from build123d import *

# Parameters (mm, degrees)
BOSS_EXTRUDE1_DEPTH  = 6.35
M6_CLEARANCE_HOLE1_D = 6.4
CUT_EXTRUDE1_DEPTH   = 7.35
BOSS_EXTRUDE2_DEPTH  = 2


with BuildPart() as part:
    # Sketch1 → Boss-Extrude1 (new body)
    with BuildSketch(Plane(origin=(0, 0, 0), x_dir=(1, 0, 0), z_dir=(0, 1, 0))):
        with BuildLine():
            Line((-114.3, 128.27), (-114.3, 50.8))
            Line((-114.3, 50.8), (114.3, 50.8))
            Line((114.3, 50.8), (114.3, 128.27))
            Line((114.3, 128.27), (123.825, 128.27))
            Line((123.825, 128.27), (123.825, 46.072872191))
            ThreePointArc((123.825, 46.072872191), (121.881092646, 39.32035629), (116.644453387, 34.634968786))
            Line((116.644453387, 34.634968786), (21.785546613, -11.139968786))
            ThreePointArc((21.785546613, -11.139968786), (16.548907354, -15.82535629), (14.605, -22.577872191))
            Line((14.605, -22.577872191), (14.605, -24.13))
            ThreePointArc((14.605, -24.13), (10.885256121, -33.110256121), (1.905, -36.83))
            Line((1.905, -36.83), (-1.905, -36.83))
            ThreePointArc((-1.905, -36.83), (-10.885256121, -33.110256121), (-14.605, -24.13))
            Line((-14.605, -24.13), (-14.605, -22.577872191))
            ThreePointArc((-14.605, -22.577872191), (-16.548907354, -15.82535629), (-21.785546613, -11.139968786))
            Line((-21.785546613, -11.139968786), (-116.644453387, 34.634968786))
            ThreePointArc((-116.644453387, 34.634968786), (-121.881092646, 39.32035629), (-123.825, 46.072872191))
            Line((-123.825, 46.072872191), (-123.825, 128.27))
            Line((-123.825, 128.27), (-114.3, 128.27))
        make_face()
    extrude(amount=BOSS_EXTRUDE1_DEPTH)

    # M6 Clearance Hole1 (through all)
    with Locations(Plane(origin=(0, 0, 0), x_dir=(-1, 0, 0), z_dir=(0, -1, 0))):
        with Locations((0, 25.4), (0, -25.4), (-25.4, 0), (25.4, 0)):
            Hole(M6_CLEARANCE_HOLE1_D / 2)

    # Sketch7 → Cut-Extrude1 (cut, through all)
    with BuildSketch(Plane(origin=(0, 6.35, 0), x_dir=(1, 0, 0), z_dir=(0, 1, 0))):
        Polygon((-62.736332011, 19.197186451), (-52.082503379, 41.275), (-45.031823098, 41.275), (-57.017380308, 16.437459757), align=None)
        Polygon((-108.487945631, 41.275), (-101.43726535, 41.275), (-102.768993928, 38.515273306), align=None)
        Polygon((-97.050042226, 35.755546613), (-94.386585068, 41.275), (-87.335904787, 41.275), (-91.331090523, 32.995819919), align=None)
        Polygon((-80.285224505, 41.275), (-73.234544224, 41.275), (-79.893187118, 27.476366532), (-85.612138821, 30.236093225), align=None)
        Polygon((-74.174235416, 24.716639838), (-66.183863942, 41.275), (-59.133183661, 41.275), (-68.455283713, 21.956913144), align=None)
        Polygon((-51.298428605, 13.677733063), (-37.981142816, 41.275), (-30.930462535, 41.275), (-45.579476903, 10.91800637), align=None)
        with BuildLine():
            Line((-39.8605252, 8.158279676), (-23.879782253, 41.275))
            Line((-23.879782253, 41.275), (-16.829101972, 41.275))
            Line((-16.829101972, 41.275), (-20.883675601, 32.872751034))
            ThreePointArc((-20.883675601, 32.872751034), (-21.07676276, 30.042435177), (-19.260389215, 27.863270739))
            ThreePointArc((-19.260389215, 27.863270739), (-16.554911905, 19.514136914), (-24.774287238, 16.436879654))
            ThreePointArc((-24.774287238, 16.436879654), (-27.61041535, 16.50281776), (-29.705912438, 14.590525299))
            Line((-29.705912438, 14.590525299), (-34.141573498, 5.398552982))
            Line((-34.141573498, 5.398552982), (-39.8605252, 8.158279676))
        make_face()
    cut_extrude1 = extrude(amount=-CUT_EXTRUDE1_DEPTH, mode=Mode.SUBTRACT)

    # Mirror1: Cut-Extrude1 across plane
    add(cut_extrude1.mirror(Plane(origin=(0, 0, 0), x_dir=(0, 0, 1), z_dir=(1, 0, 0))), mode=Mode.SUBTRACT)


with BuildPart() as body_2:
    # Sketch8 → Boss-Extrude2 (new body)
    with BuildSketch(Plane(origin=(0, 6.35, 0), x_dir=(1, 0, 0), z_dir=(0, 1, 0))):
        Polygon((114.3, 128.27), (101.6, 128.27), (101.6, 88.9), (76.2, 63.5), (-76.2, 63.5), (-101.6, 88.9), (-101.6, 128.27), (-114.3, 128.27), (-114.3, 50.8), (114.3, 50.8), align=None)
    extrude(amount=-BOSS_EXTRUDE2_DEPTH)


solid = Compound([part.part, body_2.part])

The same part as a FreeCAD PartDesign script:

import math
import FreeCAD as App
import Part
import Sketcher

V = App.Vector
Q = App.Units.Quantity


def add_polygon(sketch, points):
    """Adds a closed chain of lines whose ends are joined by coincident constraints."""
    first, n = sketch.GeometryCount, len(points)
    for a, b in zip(points, points[1:] + points[:1]):
        sketch.addGeometry(Part.LineSegment(App.Vector(*a, 0), App.Vector(*b, 0)), False)
    for i in range(n):
        sketch.addConstraint(Sketcher.Constraint("Coincident", first + i, 2, first + (i + 1) % n, 1))

doc = App.newDocument("Part")
body = doc.addObject("PartDesign::Body", "Body")

sketch1 = doc.addObject("Sketcher::SketchObject", "Sketch")
body.addObject(sketch1)
sketch1.AttachmentSupport = (doc.XZ_Plane, [""])
sketch1.MapMode = "FlatFace"
sketch1.addGeometry([
    Part.LineSegment(V(-114.3, -50.8, 0), V(-114.3, -128.27, 0)),
    Part.LineSegment(V(-114.3, -128.27, 0), V(-123.825, -128.27, 0)),
    Part.LineSegment(V(-123.825, -128.27, 0), V(-123.825, -46.072872, 0)),
    Part.ArcOfCircle(Part.Circle(V(-111.125, -46.072872, 0), V(0, 0, 1), 12.7), math.radians(115.760011), math.radians(180)),
    Part.LineSegment(V(-116.644453, -34.634969, 0), V(-21.785547, 11.139969, 0)),
    Part.ArcOfCircle(Part.Circle(V(-27.305, 22.577872, 0), V(0, 0, 1), 12.7), math.radians(-64.239989), math.radians(0)),
    Part.LineSegment(V(-14.605, 22.577872, 0), V(-14.605, 24.13, 0)),
    Part.ArcOfCircle(Part.Circle(V(-1.905, 24.13, 0), V(0, 0, 1), 12.7), math.radians(90), math.radians(180)),
    Part.LineSegment(V(-1.905, 36.83, 0), V(1.905, 36.83, 0)),
    Part.ArcOfCircle(Part.Circle(V(1.905, 24.13, 0), V(0, 0, 1), 12.7), math.radians(0), math.radians(90)),
    Part.LineSegment(V(14.605, 24.13, 0), V(14.605, 22.577872, 0)),
    Part.ArcOfCircle(Part.Circle(V(27.305, 22.577872, 0), V(0, 0, 1), 12.7), math.radians(180), math.radians(244.239989)),
    Part.LineSegment(V(21.785547, 11.139969, 0), V(116.644453, -34.634969, 0)),
    Part.ArcOfCircle(Part.Circle(V(111.125, -46.072872, 0), V(0, 0, 1), 12.7), math.radians(0), math.radians(64.239989)),
    Part.LineSegment(V(123.825, -46.072872, 0), V(123.825, -128.27, 0)),
    Part.LineSegment(V(123.825, -128.27, 0), V(114.3, -128.27, 0)),
    Part.LineSegment(V(114.3, -128.27, 0), V(114.3, -50.8, 0)),
    Part.LineSegment(V(114.3, -50.8, 0), V(-114.3, -50.8, 0)),
], False)
sketch1.addConstraint([
    Sketcher.Constraint("Coincident", 0, 2, 1, 1),
    Sketcher.Constraint("Coincident", 1, 2, 2, 1),
    Sketcher.Constraint("Tangent", 2, 2, 3, 2),
    Sketcher.Constraint("Tangent", 3, 1, 4, 1),
    Sketcher.Constraint("Tangent", 4, 2, 5, 1),
    Sketcher.Constraint("Tangent", 5, 2, 6, 1),
    Sketcher.Constraint("Tangent", 6, 2, 7, 2),
    Sketcher.Constraint("Tangent", 7, 1, 8, 1),
    Sketcher.Constraint("Tangent", 8, 2, 9, 2),
    Sketcher.Constraint("Tangent", 9, 1, 10, 1),
    Sketcher.Constraint("Tangent", 10, 2, 11, 1),
    Sketcher.Constraint("Tangent", 11, 2, 12, 1),
    Sketcher.Constraint("Tangent", 12, 2, 13, 2),
    Sketcher.Constraint("Tangent", 13, 1, 14, 1),
    Sketcher.Constraint("Coincident", 14, 2, 15, 1),
    Sketcher.Constraint("Coincident", 15, 2, 16, 1),
    Sketcher.Constraint("Coincident", 16, 2, 17, 1),
    Sketcher.Constraint("Coincident", 17, 2, 0, 1),
    Sketcher.Constraint("Vertical", 0),
    Sketcher.Constraint("Horizontal", 1),
    Sketcher.Constraint("Vertical", 2),
    Sketcher.Constraint("Vertical", 6),
    Sketcher.Constraint("Horizontal", 8),
    Sketcher.Constraint("Vertical", 10),
    Sketcher.Constraint("Vertical", 14),
    Sketcher.Constraint("Horizontal", 15),
    Sketcher.Constraint("Vertical", 16),
    Sketcher.Constraint("Horizontal", 17),
    Sketcher.Constraint("Equal", 3, 5),
    Sketcher.Constraint("Equal", 5, 7),
    Sketcher.Constraint("Equal", 7, 9),
    Sketcher.Constraint("Equal", 9, 11),
    Sketcher.Constraint("Equal", 11, 13),
    Sketcher.Constraint("Symmetric", 5, 3, 11, 3, -2),
    Sketcher.Constraint("Symmetric", 3, 3, 13, 3, -2),
    Sketcher.Constraint("Symmetric", 0, 2, 15, 2, -2),
    Sketcher.Constraint("Radius", 3, Q("0.5 in")),
    Sketcher.Constraint("DistanceX", 17, 2, 17, 1, Q("9 in")),
    Sketcher.Constraint("DistanceY", 16, 2, -1, 1, Q("2 in")),
    Sketcher.Constraint("DistanceY", 0, 2, 7, 3, Q("6 in")),
    Sketcher.Constraint("DistanceX", 8, 1, 8, 2, Q("0.15 in")),
    Sketcher.Constraint("DistanceY", 0, 2, 0, 1, Q("3.05 in")),
    Sketcher.Constraint("DistanceX", 3, 3, 5, 3, Q("3.3 in")),
    Sketcher.Constraint("Angle", 4, Q("25.760011 deg")),
    Sketcher.Constraint("DistanceY", 2, 1, 2, 2, Q("82.197128 mm")),
])
pad1 = doc.addObject("PartDesign::Pad", "Pad")
body.addObject(pad1)
pad1.Profile = sketch1
pad1.Length = Q("0.25 in")
pad1.Reversed = True

sketch2 = doc.addObject("Sketcher::SketchObject", "Sketch001")
body.addObject(sketch2)
sketch2.AttachmentSupport = (doc.XZ_Plane, [""])
sketch2.MapMode = "FlatFace"
sketch2.addGeometry([
    Part.Circle(V(0, -25.4, 0), V(0, 0, 1), 3.2),
    Part.Circle(V(0, 25.4, 0), V(0, 0, 1), 3.2),
    Part.Circle(V(25.4, 0, 0), V(0, 0, 1), 3.2),
    Part.Circle(V(-25.4, 0, 0), V(0, 0, 1), 3.2),
], False)
sketch2.addConstraint([
    Sketcher.Constraint("Equal", 0, 1),
    Sketcher.Constraint("Equal", 1, 2),
    Sketcher.Constraint("Equal", 2, 3),
    Sketcher.Constraint("Symmetric", 0, 3, 1, 3, -1, 1),
    Sketcher.Constraint("Symmetric", 2, 3, 3, 3, -1, 1),
    Sketcher.Constraint("PointOnObject", 0, 3, -2),
    Sketcher.Constraint("PointOnObject", 2, 3, -1),
    Sketcher.Constraint("DistanceY", 0, 3, -1, 1, Q("1 in")),
    Sketcher.Constraint("DistanceX", -1, 1, 2, 3, Q("1 in")),
    Sketcher.Constraint("Diameter", 0, Q("6.4 mm")),
])
doc.recompute()
hole = doc.addObject("PartDesign::Hole", "Hole")
body.addObject(hole)
hole.Profile = sketch2
hole.ThreadType = "None"
hole.Diameter = 6.4
hole.DepthType = "ThroughAll"

sketch3 = doc.addObject("Sketcher::SketchObject", "Sketch002")
body.addObject(sketch3)
sketch3.AttachmentSupport = (doc.XZ_Plane, [""])
sketch3.MapMode = "FlatFace"
sketch3.AttachmentOffset = App.Placement(V(0, 0, -0.25 * 25.4), App.Rotation())
add_polygon(sketch3, [(-52.082503, -41.275), (-62.736332, -19.197186), (-57.01738, -16.43746), (-45.031823, -41.275)])
add_polygon(sketch3, [(-101.437265, -41.275), (-108.487946, -41.275), (-102.768994, -38.515273)])
add_polygon(sketch3, [(-94.386585, -41.275), (-97.050042, -35.755547), (-91.331091, -32.99582), (-87.335905, -41.275)])
add_polygon(sketch3, [(-73.234544, -41.275), (-80.285225, -41.275), (-85.612139, -30.236093), (-79.893187, -27.476367)])
add_polygon(sketch3, [(-66.183864, -41.275), (-74.174235, -24.71664), (-68.455284, -21.956913), (-59.133184, -41.275)])
add_polygon(sketch3, [(-37.981143, -41.275), (-51.298429, -13.677733), (-45.579477, -10.918006), (-30.930463, -41.275)])
sketch3.addGeometry(Part.LineSegment(V(-23.879782, -41.275, 0), V(-39.860525, -8.15828, 0)), False)
sketch3.addGeometry(Part.LineSegment(V(-39.860525, -8.15828, 0), V(-34.141573, -5.398553, 0)), False)
sketch3.addGeometry(Part.LineSegment(V(-34.141573, -5.398553, 0), V(-29.705912, -14.590525, 0)), False)
sketch3.addGeometry(Part.ArcOfCircle(Part.Circle(V(-26.274541, -12.934689, 0), V(0, 0, 1), 3.81), math.radians(-154.239989), math.radians(-66.810872)), False)
sketch3.addGeometry(Part.ArcOfCircle(Part.Circle(V(-22.273864, -22.273864, 0), V(0, 0, 1), 6.35), math.radians(-61.669106), math.radians(113.189128)), False)
sketch3.addGeometry(Part.ArcOfCircle(Part.Circle(V(-17.452305, -31.216915, 0), V(0, 0, 1), 3.81), math.radians(118.330894), math.radians(205.760011)), False)
sketch3.addGeometry(Part.LineSegment(V(-20.883676, -32.872751, 0), V(-16.829102, -41.275, 0)), False)
sketch3.addGeometry(Part.LineSegment(V(-16.829102, -41.275, 0), V(-23.879782, -41.275, 0)), False)
sketch3.addConstraint([
    Sketcher.Constraint("Coincident", 23, 2, 24, 1),
    Sketcher.Constraint("Coincident", 24, 2, 25, 1),
    Sketcher.Constraint("Tangent", 25, 2, 26, 1),
    Sketcher.Constraint("Tangent", 26, 2, 27, 2),
    Sketcher.Constraint("Tangent", 27, 1, 28, 1),
    Sketcher.Constraint("Tangent", 28, 2, 29, 1),
    Sketcher.Constraint("Coincident", 29, 2, 30, 1),
    Sketcher.Constraint("Coincident", 30, 2, 23, 1),
    Sketcher.Constraint("Horizontal", 3),
    Sketcher.Constraint("Horizontal", 4),
    Sketcher.Constraint("Horizontal", 10),
    Sketcher.Constraint("Horizontal", 11),
    Sketcher.Constraint("Horizontal", 18),
    Sketcher.Constraint("Horizontal", 22),
    Sketcher.Constraint("Horizontal", 30),
    Sketcher.Constraint("Equal", 26, 28),
    Sketcher.Constraint("Perpendicular", 0, 1),
    Sketcher.Constraint("Perpendicular", 1, 2),
    Sketcher.Constraint("Perpendicular", 2, 5),
    Sketcher.Constraint("Perpendicular", 5, 6),
    Sketcher.Constraint("Parallel", 6, 7),
    Sketcher.Constraint("Perpendicular", 7, 8),
    Sketcher.Constraint("Perpendicular", 8, 9),
    Sketcher.Constraint("Parallel", 9, 12),
    Sketcher.Constraint("Perpendicular", 12, 13),
    Sketcher.Constraint("Perpendicular", 13, 14),
    Sketcher.Constraint("Parallel", 14, 15),
    Sketcher.Constraint("Perpendicular", 15, 16),
    Sketcher.Constraint("Perpendicular", 16, 17),
    Sketcher.Constraint("Parallel", 17, 19),
    Sketcher.Constraint("Perpendicular", 19, 20),
    Sketcher.Constraint("Perpendicular", 20, 21),
    Sketcher.Constraint("Parallel", 21, 23),
    Sketcher.Constraint("Perpendicular", 23, 24),
    Sketcher.Constraint("Perpendicular", 24, 25),
    Sketcher.Constraint("Parallel", 25, 29),
    Sketcher.Constraint("Horizontal", 3, 2, 4, 2),
    Sketcher.Constraint("Horizontal", 6, 2, 9, 2),
    Sketcher.Constraint("Horizontal", 10, 2, 11, 2),
    Sketcher.Constraint("Horizontal", 14, 2, 17, 2),
    Sketcher.Constraint("Horizontal", 18, 2, 21, 2),
    Sketcher.Constraint("Horizontal", 22, 2, 29, 2),
    Sketcher.Constraint("Equal", 3, 4),
    Sketcher.Constraint("Equal", 4, 10),
    Sketcher.Constraint("Equal", 10, 11),
    Sketcher.Constraint("Equal", 11, 18),
    Sketcher.Constraint("Equal", 18, 22),
    Sketcher.Constraint("Equal", 22, 30),
    Sketcher.Constraint("Equal", 20, 24),
    Sketcher.Constraint("Radius", 26, Q("0.15 in")),
    Sketcher.Constraint("Radius", 27, Q("0.25 in")),
    Sketcher.Constraint("Distance", 1, Q("0.25 in")),
    Sketcher.Constraint("Angle", 0, Q("115.760011 deg")),
    Sketcher.Constraint("DistanceY", 2, 2, -1, 1, Q("1.625 in")),
    Sketcher.Constraint("DistanceX", 29, 2, -1, 1, Q("16.829102 mm")),
    Sketcher.Constraint("DistanceX", 3, 2, 28, 3, Q("34.630199 mm")),
    Sketcher.Constraint("DistanceX", 16, 2, 17, 2, Q("9.3221 mm")),
    Sketcher.Constraint("DistanceX", 21, 2, 27, 3, Q("8.656599 mm")),
    Sketcher.Constraint("Distance", 7, Q("6.128488 mm")),
    Sketcher.Constraint("Distance", 14, Q("15.321221 mm")),
    Sketcher.Constraint("Distance", 19, Q("30.642442 mm")),
    Sketcher.Constraint("Distance", 23, Q("36.77093 mm")),
    Sketcher.Constraint("Distance", 29, Q("9.329381 mm")),
    Sketcher.Constraint("DistanceX", 26, 3, -1, 1, Q("26.274541 mm")),
    Sketcher.Constraint("DistanceX", 1, 2, -1, 1, Q("57.01738 mm")),
    Sketcher.Constraint("DistanceX", 8, 2, -1, 1, Q("91.331091 mm")),
    Sketcher.Constraint("DistanceX", 12, 2, -1, 1, Q("85.612139 mm")),
    Sketcher.Constraint("DistanceX", 5, 2, 0, 2, Q("40.032662 mm")),
    Sketcher.Constraint("DistanceX", 13, 2, 15, 2, Q("5.718952 mm")),
])
pocket1 = doc.addObject("PartDesign::Pocket", "Pocket")
body.addObject(pocket1)
pocket1.Profile = sketch3
pocket1.Type = "ThroughAll"
pocket1.Reversed = True
doc.recompute()

mirrored = doc.addObject("PartDesign::Mirrored", "Mirrored")
body.addObject(mirrored)
mirrored.Originals = [pocket1]
mirrored.MirrorPlane = (doc.YZ_Plane, [""])
body.Tip = mirrored
body2 = doc.addObject("PartDesign::Body", "Body001")

sketch4 = doc.addObject("Sketcher::SketchObject", "Sketch003")
body2.addObject(sketch4)
sketch4.AttachmentSupport = (doc.getObject("XZ_Plane001"), [""])
sketch4.MapMode = "FlatFace"
sketch4.AttachmentOffset = App.Placement(V(0, 0, -0.25 * 25.4), App.Rotation())
add_polygon(sketch4, [(114.3, -128.27), (101.6, -128.27), (101.6, -88.9), (76.2, -63.5), (-76.2, -63.5), (-101.6, -88.9), (-101.6, -128.27), (-114.3, -128.27), (-114.3, -50.8), (114.3, -50.8)])
sketch4.addConstraint([
    Sketcher.Constraint("Horizontal", 0),
    Sketcher.Constraint("Vertical", 1),
    Sketcher.Constraint("Horizontal", 3),
    Sketcher.Constraint("Vertical", 5),
    Sketcher.Constraint("Horizontal", 6),
    Sketcher.Constraint("Vertical", 7),
    Sketcher.Constraint("Horizontal", 8),
    Sketcher.Constraint("Vertical", 9),
    Sketcher.Constraint("Symmetric", 1, 2, 4, 2, -2),
    Sketcher.Constraint("Symmetric", 6, 2, 9, 2, -2),
    Sketcher.Constraint("Perpendicular", 2, 4),
    Sketcher.Constraint("Equal", 2, 4),
    Sketcher.Constraint("DistanceX", 3, 2, 3, 1, Q("6 in")),
    Sketcher.Constraint("DistanceX", 8, 1, 8, 2, Q("9 in")),
    Sketcher.Constraint("DistanceX", 0, 2, 0, 1, Q("0.5 in")),
    Sketcher.Constraint("DistanceY", 7, 2, -1, 1, Q("2 in")),
    Sketcher.Constraint("DistanceY", 1, 1, 1, 2, Q("1.55 in")),
    Sketcher.Constraint("DistanceY", 7, 1, 7, 2, Q("3.05 in")),
])
pad2 = doc.addObject("PartDesign::Pad", "Pad001")
body2.addObject(pad2)
pad2.Profile = sketch4
pad2.Length = 2

doc.recompute()
